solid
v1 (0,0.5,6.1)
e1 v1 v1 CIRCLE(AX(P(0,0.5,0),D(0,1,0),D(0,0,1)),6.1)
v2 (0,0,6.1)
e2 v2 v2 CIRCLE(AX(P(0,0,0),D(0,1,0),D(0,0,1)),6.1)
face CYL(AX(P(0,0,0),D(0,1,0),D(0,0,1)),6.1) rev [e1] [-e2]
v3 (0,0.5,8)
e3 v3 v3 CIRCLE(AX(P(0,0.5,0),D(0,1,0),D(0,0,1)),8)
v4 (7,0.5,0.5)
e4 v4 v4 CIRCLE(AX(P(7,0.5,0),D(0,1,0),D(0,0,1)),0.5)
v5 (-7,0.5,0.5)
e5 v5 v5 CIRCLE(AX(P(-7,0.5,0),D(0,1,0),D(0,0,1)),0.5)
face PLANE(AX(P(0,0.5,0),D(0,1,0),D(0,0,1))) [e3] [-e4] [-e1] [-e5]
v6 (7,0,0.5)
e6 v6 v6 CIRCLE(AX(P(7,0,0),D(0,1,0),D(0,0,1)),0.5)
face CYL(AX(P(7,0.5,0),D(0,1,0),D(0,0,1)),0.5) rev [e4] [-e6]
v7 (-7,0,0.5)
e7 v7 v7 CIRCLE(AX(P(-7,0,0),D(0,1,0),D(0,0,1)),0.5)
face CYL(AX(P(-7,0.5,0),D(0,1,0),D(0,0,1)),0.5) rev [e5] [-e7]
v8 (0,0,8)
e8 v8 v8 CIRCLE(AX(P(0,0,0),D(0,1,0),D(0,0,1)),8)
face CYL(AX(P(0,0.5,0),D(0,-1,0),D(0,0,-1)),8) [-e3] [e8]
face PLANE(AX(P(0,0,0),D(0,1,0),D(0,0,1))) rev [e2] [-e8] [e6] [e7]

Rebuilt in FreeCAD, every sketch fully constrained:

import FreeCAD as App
import Part
import Sketcher

doc = App.newDocument("Part")
body = doc.addObject("PartDesign::Body", "Body")

# Sketch on XZ plane
sketch1 = doc.addObject("Sketcher::SketchObject", "Sketch")
body.addObject(sketch1)
sketch1.AttachmentSupport = (doc.XZ_Plane, [""])
sketch1.MapMode = "FlatFace"
sketch1.addGeometry(Part.Circle(App.Vector(0, 0, 0), App.Vector(0, 0, 1), 8), False)
sketch1.addConstraint([
    Sketcher.Constraint("Coincident", 0, 3, -1, 1),
    Sketcher.Constraint("Diameter", 0, 16.0),
])
pad1 = doc.addObject("PartDesign::Pad", "Pad")
body.addObject(pad1)
pad1.Profile = sketch1
pad1.Length = 0.5
pad1.Reversed = True

# Sketch on XZ plane
sketch2 = doc.addObject("Sketcher::SketchObject", "Sketch001")
body.addObject(sketch2)
sketch2.AttachmentSupport = (doc.XZ_Plane, [""])
sketch2.MapMode = "FlatFace"
sketch2.AttachmentOffset = App.Placement(App.Vector(0, 0, -0.5), App.Rotation())
sketch2.addGeometry(Part.Circle(App.Vector(0, 0, 0), App.Vector(0, 0, 1), 6), False)
sketch2.addConstraint([
    Sketcher.Constraint("Coincident", 0, 3, -1, 1),
    Sketcher.Constraint("Diameter", 0, 12.2),
])
pocket1 = doc.addObject("PartDesign::Pocket", "Pocket")
body.addObject(pocket1)
pocket1.Profile = sketch2
pocket1.Type = "ThroughAll"
pocket1.Reversed = True

# Sketch on XZ plane
sketch3 = doc.addObject("Sketcher::SketchObject", "Sketch002")
body.addObject(sketch3)
sketch3.AttachmentSupport = (doc.XZ_Plane, [""])
sketch3.MapMode = "FlatFace"
sketch3.AttachmentOffset = App.Placement(App.Vector(0, 0, -0.5), App.Rotation())
sketch3.addGeometry([
    Part.Circle(App.Vector(-7, 0, 0), App.Vector(0, 0, 1), 0.5),
    Part.Circle(App.Vector(7, 0, 0), App.Vector(0, 0, 1), 0.5),
], False)
sketch3.addConstraint([
    Sketcher.Constraint("Equal", 0, 1),
    Sketcher.Constraint("Symmetric", 0, 3, 1, 3, -1, 1),
    Sketcher.Constraint("PointOnObject", 0, 3, -1),
    Sketcher.Constraint("Diameter", 0, 1.0),
    Sketcher.Constraint("DistanceX", 0, 3, -1, 1, 7.0),
])
doc.recompute()
hole = doc.addObject("PartDesign::Hole", "Hole")
body.addObject(hole)
hole.Profile = sketch3
hole.ThreadType = "None"
hole.Diameter = 1
hole.DepthType = "Dimension"
hole.Depth = 0.5
hole.DrillPoint = "Flat"
hole.Reversed = True

doc.recompute()
